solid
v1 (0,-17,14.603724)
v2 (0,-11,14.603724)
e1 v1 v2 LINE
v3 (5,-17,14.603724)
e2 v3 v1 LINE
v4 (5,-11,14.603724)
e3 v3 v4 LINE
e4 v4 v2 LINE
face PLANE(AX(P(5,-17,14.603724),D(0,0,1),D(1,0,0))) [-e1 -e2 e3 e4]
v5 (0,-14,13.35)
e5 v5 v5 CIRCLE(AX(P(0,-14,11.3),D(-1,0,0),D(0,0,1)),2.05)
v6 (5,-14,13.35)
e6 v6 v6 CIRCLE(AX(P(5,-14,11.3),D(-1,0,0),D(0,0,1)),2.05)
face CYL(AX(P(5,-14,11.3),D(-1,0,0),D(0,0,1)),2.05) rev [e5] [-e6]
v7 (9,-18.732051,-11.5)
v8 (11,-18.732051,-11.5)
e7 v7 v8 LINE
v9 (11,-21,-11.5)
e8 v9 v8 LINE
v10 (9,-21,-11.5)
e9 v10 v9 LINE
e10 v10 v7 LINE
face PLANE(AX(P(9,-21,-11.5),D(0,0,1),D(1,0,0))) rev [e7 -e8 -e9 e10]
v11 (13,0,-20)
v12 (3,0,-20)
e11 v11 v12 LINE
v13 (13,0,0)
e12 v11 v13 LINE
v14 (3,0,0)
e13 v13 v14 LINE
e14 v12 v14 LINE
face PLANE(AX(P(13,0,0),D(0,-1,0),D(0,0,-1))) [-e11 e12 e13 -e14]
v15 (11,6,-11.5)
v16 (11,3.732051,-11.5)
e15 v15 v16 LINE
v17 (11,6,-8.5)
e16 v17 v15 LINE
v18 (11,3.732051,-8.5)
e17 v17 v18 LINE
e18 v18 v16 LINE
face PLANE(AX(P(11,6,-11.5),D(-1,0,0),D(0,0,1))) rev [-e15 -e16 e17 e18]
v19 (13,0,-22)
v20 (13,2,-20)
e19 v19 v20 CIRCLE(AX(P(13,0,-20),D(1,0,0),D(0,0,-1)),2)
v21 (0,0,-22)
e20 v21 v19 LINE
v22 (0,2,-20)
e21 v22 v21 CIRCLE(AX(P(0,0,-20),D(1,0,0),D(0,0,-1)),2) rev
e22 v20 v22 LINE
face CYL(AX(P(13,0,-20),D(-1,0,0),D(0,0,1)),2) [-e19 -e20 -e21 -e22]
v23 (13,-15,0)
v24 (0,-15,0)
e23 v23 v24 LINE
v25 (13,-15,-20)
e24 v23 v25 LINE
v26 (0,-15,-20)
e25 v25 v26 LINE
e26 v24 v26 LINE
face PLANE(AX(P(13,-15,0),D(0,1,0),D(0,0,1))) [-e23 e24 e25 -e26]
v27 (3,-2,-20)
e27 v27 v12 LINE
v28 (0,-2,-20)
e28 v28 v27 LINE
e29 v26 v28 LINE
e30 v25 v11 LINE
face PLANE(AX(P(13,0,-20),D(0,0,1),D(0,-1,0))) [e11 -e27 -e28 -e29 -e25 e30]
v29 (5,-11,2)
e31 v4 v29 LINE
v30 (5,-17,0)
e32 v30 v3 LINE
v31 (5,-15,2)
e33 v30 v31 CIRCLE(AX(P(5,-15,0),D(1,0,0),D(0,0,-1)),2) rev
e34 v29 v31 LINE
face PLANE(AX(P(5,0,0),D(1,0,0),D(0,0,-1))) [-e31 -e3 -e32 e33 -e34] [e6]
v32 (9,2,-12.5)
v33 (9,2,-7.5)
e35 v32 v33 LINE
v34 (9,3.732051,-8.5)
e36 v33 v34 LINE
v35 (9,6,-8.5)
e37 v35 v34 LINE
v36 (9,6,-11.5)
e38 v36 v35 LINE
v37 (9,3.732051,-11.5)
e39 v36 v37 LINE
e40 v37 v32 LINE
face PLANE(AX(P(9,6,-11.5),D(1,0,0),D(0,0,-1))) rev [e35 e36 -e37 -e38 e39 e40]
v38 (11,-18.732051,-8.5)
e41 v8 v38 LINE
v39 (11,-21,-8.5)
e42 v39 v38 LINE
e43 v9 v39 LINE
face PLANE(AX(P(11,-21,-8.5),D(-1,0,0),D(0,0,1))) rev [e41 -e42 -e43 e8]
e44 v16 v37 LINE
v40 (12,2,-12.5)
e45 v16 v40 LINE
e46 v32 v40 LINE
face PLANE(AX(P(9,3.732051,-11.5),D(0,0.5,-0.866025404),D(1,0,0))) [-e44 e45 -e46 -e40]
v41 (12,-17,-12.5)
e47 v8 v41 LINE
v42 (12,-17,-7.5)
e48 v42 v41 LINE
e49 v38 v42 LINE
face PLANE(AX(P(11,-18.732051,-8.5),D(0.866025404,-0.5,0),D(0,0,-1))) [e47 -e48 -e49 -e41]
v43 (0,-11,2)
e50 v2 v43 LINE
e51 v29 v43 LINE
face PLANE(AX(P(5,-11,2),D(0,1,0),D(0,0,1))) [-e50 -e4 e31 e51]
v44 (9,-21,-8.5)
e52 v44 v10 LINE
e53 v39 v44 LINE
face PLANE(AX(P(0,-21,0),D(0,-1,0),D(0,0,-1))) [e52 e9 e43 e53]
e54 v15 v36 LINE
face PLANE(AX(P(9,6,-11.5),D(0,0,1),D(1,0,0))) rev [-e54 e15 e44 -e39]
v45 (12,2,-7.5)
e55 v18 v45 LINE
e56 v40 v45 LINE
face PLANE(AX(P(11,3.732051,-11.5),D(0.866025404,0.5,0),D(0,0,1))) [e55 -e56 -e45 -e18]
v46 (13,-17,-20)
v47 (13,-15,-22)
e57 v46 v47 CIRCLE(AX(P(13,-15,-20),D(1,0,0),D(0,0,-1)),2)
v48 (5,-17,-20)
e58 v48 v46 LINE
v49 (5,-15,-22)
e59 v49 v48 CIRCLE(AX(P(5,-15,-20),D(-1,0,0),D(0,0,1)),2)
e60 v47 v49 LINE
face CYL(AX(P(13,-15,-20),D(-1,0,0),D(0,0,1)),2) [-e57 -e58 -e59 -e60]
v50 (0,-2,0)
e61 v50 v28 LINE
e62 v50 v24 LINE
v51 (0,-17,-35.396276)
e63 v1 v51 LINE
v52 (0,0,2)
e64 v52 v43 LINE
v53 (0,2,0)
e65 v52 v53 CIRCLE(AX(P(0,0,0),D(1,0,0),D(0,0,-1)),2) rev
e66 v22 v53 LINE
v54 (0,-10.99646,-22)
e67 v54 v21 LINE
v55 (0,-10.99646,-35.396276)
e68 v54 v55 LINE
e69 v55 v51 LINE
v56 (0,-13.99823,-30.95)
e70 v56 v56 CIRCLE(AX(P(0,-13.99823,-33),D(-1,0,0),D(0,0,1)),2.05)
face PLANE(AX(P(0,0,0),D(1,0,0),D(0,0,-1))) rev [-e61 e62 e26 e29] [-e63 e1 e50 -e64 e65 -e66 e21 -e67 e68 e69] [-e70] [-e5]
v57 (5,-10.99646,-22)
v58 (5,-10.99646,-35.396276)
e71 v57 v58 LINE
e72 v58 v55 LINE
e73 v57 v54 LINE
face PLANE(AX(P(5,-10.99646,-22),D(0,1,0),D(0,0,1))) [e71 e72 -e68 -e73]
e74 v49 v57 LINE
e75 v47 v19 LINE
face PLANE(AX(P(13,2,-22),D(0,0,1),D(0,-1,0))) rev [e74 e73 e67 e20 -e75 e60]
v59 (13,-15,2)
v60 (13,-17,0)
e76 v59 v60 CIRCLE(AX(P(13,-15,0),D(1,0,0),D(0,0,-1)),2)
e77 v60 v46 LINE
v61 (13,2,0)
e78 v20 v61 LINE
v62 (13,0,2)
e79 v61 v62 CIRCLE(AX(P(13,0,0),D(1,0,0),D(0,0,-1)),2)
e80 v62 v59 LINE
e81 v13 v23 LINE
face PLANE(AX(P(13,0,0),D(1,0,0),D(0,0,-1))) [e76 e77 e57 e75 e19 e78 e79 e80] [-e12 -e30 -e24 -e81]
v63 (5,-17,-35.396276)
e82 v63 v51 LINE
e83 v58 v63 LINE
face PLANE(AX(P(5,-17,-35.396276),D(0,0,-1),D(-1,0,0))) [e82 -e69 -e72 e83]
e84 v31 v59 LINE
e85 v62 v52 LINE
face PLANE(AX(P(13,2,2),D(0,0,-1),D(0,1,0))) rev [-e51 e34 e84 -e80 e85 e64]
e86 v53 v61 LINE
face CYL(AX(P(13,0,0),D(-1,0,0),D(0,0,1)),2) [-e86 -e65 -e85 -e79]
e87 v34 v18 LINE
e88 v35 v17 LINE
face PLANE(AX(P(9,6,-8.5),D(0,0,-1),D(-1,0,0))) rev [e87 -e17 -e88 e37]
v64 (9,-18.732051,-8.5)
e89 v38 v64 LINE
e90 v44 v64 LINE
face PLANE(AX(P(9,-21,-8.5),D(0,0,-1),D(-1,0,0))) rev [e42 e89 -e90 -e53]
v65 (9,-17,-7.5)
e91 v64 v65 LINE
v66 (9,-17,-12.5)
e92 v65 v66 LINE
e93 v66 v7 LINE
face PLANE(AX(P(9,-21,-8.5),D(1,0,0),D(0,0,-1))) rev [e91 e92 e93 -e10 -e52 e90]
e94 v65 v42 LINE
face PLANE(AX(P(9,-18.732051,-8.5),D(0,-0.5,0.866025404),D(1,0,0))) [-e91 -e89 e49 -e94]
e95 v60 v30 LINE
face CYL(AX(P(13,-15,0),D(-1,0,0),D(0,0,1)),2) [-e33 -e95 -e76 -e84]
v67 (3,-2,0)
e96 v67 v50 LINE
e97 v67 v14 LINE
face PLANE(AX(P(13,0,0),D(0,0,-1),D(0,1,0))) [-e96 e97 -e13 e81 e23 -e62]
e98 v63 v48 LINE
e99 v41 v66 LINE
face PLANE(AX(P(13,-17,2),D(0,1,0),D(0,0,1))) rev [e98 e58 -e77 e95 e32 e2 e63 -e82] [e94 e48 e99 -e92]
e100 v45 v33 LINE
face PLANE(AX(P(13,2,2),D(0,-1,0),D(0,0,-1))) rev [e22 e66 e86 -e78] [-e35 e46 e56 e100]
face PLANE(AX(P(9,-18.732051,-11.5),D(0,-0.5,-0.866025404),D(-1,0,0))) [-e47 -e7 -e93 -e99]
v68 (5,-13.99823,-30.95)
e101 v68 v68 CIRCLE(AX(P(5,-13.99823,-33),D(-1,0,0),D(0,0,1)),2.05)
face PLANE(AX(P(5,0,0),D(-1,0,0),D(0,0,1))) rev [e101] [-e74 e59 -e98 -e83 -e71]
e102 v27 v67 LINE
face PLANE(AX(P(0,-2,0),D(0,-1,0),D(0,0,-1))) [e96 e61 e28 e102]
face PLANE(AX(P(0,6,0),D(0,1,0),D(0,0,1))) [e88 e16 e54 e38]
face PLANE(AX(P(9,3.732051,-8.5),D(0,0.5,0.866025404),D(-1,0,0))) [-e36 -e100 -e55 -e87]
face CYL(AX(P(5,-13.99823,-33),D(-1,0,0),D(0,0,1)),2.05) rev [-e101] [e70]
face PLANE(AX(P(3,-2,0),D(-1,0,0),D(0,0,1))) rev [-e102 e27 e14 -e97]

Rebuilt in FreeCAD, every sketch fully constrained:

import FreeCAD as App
import Part
import Sketcher

V = App.Vector


def edges_at(feature, points):
    """Names of the edges that pass closest to the given points."""
    edges = feature.Shape.Edges
    near = lambda p: min(range(len(edges)), key=lambda i: edges[i].distToShape(Part.Vertex(*p))[0])
    return sorted({f"Edge{near(p) + 1}" for p in points})


def add_polygon(sketch, points):
    """Adds a closed chain of lines whose ends are joined by coincident constraints."""
    first, n = sketch.GeometryCount, len(points)
    for a, b in zip(points, points[1:] + points[:1]):
        sketch.addGeometry(Part.LineSegment(App.Vector(*a, 0), App.Vector(*b, 0)), False)
    for i in range(n):
        sketch.addConstraint(Sketcher.Constraint("Coincident", first + i, 2, first + (i + 1) % n, 1))

doc = App.newDocument("Part")
body = doc.addObject("PartDesign::Body", "Body")

sketch1 = body.newObject("Sketcher::SketchObject", "Sketch")
sketch1.AttachmentSupport = (doc.getObject("YZ_Plane"), [""])
sketch1.MapMode = "FlatFace"
add_polygon(sketch1, [(2, 2), (-17, 2), (-17, -22), (2, -22)])
add_polygon(sketch1, [(-15, -20), (-15, 0), (0, 0), (0, -20)])
sketch1.addConstraint([
    Sketcher.Constraint("Horizontal", 0),
    Sketcher.Constraint("Vertical", 1),
    Sketcher.Constraint("Horizontal", 2),
    Sketcher.Constraint("Vertical", 3),
    Sketcher.Constraint("Vertical", 4),
    Sketcher.Constraint("Horizontal", 5),
    Sketcher.Constraint("Vertical", 6),
    Sketcher.Constraint("Horizontal", 7),
    Sketcher.Constraint("Coincident", 5, 2, -1, 1),
    Sketcher.Constraint("DistanceX", 0, 2, 0, 1, 19.0),
    Sketcher.Constraint("DistanceX", 5, 1, 5, 2, 15.0),
    Sketcher.Constraint("DistanceY", 1, 2, 1, 1, 24.0),
    Sketcher.Constraint("DistanceY", 4, 1, 4, 2, 20.0),
    Sketcher.Constraint("DistanceX", 0, 2, -1, 1, 17.0),
    Sketcher.Constraint("DistanceY", -1, 1, 0, 2, 2.0),
])
pad1 = body.newObject("PartDesign::Pad", "Pad")
pad1.Profile = sketch1
pad1.Length = 13

sketch2 = body.newObject("Sketcher::SketchObject", "Sketch001")
sketch2.AttachmentSupport = (doc.getObject("YZ_Plane"), [""])
sketch2.MapMode = "FlatFace"
add_polygon(sketch2, [(-10.99646, -35.396276), (-17, -35.396276), (-17, -22), (-10.99646, -22)])
sketch2.addGeometry(Part.Circle(V(-13.99823, -33, 0), V(0, 0, 1), 2.05), False)
add_polygon(sketch2, [(-11, 2), (-17, 2), (-17, 14.603724), (-11, 14.603724)])
sketch2.addGeometry(Part.Circle(V(-14, 11.3, 0), V(0, 0, 1), 2.05), False)
sketch2.addConstraint([
    Sketcher.Constraint("Horizontal", 0),
    Sketcher.Constraint("Vertical", 1),
    Sketcher.Constraint("Horizontal", 2),
    Sketcher.Constraint("Vertical", 3),
    Sketcher.Constraint("Horizontal", 5),
    Sketcher.Constraint("Vertical", 6),
    Sketcher.Constraint("Horizontal", 7),
    Sketcher.Constraint("Vertical", 8),
    Sketcher.Constraint("Equal", 4, 9),
    Sketcher.Constraint("Vertical", 1, 2, 5, 2),
    Sketcher.Constraint("Diameter", 4, 4.1),
    Sketcher.Constraint("DistanceX", 5, 2, 5, 1, 6.0),
    Sketcher.Constraint("DistanceY", 4, 3, -1, 1, 33.0),
    Sketcher.Constraint("DistanceX", 9, 3, -1, 1, 14.0),
    Sketcher.Constraint("DistanceX", 0, 2, -1, 1, 17.0),
    Sketcher.Constraint("DistanceY", 1, 2, -1, 1, 22.0),
    Sketcher.Constraint("DistanceY", -1, 1, 5, 2, 2.0),
    Sketcher.Constraint("DistanceY", -1, 1, 9, 3, 11.3),
    Sketcher.Constraint("DistanceX", 0, 2, 0, 1, 6.00354),
    Sketcher.Constraint("DistanceY", 1, 1, 1, 2, 13.396276),
    Sketcher.Constraint("DistanceY", 6, 1, 6, 2, 12.603724),
    Sketcher.Constraint("DistanceX", 4, 3, -1, 1, 13.99823),
])
pad2 = body.newObject("PartDesign::Pad", "Pad001")
pad2.Profile = sketch2
pad2.Length = 5

sketch3 = body.newObject("Sketcher::SketchObject", "Sketch002")
sketch3.AttachmentSupport = (doc.getObject("XZ_Plane"), [""])
sketch3.MapMode = "FlatFace"
add_polygon(sketch3, [(0, 0), (0, -20), (3, -20), (3, 0)])
sketch3.addConstraint([
    Sketcher.Constraint("Vertical", 0),
    Sketcher.Constraint("Horizontal", 1),
    Sketcher.Constraint("Vertical", 2),
    Sketcher.Constraint("Horizontal", 3),
    Sketcher.Constraint("Coincident", 3, 2, -1, 1),
    Sketcher.Constraint("DistanceX", 1, 1, 1, 2, 3.0),
    Sketcher.Constraint("DistanceY", 0, 2, 0, 1, 20.0),
])
pad3 = body.newObject("PartDesign::Pad", "Pad002")
pad3.Profile = sketch3
pad3.Length = 2

sketch4 = body.newObject("Sketcher::SketchObject", "Sketch003")
sketch4.AttachmentSupport = (doc.getObject("XZ_Plane"), [""])
sketch4.MapMode = "FlatFace"
sketch4.AttachmentOffset = App.Placement(V(0, 0, -2), App.Rotation())
add_polygon(sketch4, [(9, -11.5), (9, -8.5), (11, -8.5), (11, -11.5)])
sketch4.addConstraint([
    Sketcher.Constraint("Vertical", 0),
    Sketcher.Constraint("Horizontal", 1),
    Sketcher.Constraint("Vertical", 2),
    Sketcher.Constraint("Horizontal", 3),
    Sketcher.Constraint("DistanceX", 1, 1, 1, 2, 2.0),
    Sketcher.Constraint("DistanceY", 0, 1, 0, 2, 3.0),
    Sketcher.Constraint("DistanceX", -1, 1, 0, 2, 9.0),
    Sketcher.Constraint("DistanceY", 0, 2, -1, 1, 8.5),
])
pad4 = body.newObject("PartDesign::Pad", "Pad003")
pad4.Profile = sketch4
pad4.Length = 4
pad4.Reversed = True

sketch5 = body.newObject("Sketcher::SketchObject", "Sketch004")
sketch5.AttachmentSupport = (doc.getObject("XZ_Plane"), [""])
sketch5.MapMode = "FlatFace"
sketch5.AttachmentOffset = App.Placement(V(0, 0, 17), App.Rotation())
add_polygon(sketch5, [(9, -8.5), (9, -11.5), (11, -11.5), (11, -8.5)])
sketch5.addConstraint([
    Sketcher.Constraint("Vertical", 0),
    Sketcher.Constraint("Horizontal", 1),
    Sketcher.Constraint("Vertical", 2),
    Sketcher.Constraint("Horizontal", 3),
    Sketcher.Constraint("DistanceX", 1, 1, 1, 2, 2.0),
    Sketcher.Constraint("DistanceY", 0, 2, 0, 1, 3.0),
    Sketcher.Constraint("DistanceX", -1, 1, 0, 2, 9.0),
    Sketcher.Constraint("DistanceY", 0, 2, -1, 1, 11.5),
])
pad5 = body.newObject("PartDesign::Pad", "Pad004")
pad5.Profile = sketch5
pad5.Length = 4
doc.recompute()

chamfer = body.newObject("PartDesign::Chamfer", "Chamfer")
chamfer.Base = (pad5, edges_at(pad5, [(10, 2, -8.5), (11, 2, -10), (10, 2, -11.5)]))
chamfer.ChamferType = "Two distances"
chamfer.Size = 1
chamfer.Size2 = 1.732051
doc.recompute()

fillet = body.newObject("PartDesign::Fillet", "Fillet")
fillet.Base = (chamfer, edges_at(chamfer, [
    (6.5, 2, 2),
    (6.5, 2, -22),
    (9, -17, -22),
    (9, -17, 2),
]))
fillet.Radius = 2
doc.recompute()

chamfer2 = body.newObject("PartDesign::Chamfer", "Chamfer001")
chamfer2.Base = (fillet, edges_at(fillet, [(10, -17, -11.5), (11, -17, -10), (10, -17, -8.5)]))
chamfer2.ChamferType = "Two distances"
chamfer2.Size = 1
chamfer2.Size2 = 1.732051

doc.recompute()
